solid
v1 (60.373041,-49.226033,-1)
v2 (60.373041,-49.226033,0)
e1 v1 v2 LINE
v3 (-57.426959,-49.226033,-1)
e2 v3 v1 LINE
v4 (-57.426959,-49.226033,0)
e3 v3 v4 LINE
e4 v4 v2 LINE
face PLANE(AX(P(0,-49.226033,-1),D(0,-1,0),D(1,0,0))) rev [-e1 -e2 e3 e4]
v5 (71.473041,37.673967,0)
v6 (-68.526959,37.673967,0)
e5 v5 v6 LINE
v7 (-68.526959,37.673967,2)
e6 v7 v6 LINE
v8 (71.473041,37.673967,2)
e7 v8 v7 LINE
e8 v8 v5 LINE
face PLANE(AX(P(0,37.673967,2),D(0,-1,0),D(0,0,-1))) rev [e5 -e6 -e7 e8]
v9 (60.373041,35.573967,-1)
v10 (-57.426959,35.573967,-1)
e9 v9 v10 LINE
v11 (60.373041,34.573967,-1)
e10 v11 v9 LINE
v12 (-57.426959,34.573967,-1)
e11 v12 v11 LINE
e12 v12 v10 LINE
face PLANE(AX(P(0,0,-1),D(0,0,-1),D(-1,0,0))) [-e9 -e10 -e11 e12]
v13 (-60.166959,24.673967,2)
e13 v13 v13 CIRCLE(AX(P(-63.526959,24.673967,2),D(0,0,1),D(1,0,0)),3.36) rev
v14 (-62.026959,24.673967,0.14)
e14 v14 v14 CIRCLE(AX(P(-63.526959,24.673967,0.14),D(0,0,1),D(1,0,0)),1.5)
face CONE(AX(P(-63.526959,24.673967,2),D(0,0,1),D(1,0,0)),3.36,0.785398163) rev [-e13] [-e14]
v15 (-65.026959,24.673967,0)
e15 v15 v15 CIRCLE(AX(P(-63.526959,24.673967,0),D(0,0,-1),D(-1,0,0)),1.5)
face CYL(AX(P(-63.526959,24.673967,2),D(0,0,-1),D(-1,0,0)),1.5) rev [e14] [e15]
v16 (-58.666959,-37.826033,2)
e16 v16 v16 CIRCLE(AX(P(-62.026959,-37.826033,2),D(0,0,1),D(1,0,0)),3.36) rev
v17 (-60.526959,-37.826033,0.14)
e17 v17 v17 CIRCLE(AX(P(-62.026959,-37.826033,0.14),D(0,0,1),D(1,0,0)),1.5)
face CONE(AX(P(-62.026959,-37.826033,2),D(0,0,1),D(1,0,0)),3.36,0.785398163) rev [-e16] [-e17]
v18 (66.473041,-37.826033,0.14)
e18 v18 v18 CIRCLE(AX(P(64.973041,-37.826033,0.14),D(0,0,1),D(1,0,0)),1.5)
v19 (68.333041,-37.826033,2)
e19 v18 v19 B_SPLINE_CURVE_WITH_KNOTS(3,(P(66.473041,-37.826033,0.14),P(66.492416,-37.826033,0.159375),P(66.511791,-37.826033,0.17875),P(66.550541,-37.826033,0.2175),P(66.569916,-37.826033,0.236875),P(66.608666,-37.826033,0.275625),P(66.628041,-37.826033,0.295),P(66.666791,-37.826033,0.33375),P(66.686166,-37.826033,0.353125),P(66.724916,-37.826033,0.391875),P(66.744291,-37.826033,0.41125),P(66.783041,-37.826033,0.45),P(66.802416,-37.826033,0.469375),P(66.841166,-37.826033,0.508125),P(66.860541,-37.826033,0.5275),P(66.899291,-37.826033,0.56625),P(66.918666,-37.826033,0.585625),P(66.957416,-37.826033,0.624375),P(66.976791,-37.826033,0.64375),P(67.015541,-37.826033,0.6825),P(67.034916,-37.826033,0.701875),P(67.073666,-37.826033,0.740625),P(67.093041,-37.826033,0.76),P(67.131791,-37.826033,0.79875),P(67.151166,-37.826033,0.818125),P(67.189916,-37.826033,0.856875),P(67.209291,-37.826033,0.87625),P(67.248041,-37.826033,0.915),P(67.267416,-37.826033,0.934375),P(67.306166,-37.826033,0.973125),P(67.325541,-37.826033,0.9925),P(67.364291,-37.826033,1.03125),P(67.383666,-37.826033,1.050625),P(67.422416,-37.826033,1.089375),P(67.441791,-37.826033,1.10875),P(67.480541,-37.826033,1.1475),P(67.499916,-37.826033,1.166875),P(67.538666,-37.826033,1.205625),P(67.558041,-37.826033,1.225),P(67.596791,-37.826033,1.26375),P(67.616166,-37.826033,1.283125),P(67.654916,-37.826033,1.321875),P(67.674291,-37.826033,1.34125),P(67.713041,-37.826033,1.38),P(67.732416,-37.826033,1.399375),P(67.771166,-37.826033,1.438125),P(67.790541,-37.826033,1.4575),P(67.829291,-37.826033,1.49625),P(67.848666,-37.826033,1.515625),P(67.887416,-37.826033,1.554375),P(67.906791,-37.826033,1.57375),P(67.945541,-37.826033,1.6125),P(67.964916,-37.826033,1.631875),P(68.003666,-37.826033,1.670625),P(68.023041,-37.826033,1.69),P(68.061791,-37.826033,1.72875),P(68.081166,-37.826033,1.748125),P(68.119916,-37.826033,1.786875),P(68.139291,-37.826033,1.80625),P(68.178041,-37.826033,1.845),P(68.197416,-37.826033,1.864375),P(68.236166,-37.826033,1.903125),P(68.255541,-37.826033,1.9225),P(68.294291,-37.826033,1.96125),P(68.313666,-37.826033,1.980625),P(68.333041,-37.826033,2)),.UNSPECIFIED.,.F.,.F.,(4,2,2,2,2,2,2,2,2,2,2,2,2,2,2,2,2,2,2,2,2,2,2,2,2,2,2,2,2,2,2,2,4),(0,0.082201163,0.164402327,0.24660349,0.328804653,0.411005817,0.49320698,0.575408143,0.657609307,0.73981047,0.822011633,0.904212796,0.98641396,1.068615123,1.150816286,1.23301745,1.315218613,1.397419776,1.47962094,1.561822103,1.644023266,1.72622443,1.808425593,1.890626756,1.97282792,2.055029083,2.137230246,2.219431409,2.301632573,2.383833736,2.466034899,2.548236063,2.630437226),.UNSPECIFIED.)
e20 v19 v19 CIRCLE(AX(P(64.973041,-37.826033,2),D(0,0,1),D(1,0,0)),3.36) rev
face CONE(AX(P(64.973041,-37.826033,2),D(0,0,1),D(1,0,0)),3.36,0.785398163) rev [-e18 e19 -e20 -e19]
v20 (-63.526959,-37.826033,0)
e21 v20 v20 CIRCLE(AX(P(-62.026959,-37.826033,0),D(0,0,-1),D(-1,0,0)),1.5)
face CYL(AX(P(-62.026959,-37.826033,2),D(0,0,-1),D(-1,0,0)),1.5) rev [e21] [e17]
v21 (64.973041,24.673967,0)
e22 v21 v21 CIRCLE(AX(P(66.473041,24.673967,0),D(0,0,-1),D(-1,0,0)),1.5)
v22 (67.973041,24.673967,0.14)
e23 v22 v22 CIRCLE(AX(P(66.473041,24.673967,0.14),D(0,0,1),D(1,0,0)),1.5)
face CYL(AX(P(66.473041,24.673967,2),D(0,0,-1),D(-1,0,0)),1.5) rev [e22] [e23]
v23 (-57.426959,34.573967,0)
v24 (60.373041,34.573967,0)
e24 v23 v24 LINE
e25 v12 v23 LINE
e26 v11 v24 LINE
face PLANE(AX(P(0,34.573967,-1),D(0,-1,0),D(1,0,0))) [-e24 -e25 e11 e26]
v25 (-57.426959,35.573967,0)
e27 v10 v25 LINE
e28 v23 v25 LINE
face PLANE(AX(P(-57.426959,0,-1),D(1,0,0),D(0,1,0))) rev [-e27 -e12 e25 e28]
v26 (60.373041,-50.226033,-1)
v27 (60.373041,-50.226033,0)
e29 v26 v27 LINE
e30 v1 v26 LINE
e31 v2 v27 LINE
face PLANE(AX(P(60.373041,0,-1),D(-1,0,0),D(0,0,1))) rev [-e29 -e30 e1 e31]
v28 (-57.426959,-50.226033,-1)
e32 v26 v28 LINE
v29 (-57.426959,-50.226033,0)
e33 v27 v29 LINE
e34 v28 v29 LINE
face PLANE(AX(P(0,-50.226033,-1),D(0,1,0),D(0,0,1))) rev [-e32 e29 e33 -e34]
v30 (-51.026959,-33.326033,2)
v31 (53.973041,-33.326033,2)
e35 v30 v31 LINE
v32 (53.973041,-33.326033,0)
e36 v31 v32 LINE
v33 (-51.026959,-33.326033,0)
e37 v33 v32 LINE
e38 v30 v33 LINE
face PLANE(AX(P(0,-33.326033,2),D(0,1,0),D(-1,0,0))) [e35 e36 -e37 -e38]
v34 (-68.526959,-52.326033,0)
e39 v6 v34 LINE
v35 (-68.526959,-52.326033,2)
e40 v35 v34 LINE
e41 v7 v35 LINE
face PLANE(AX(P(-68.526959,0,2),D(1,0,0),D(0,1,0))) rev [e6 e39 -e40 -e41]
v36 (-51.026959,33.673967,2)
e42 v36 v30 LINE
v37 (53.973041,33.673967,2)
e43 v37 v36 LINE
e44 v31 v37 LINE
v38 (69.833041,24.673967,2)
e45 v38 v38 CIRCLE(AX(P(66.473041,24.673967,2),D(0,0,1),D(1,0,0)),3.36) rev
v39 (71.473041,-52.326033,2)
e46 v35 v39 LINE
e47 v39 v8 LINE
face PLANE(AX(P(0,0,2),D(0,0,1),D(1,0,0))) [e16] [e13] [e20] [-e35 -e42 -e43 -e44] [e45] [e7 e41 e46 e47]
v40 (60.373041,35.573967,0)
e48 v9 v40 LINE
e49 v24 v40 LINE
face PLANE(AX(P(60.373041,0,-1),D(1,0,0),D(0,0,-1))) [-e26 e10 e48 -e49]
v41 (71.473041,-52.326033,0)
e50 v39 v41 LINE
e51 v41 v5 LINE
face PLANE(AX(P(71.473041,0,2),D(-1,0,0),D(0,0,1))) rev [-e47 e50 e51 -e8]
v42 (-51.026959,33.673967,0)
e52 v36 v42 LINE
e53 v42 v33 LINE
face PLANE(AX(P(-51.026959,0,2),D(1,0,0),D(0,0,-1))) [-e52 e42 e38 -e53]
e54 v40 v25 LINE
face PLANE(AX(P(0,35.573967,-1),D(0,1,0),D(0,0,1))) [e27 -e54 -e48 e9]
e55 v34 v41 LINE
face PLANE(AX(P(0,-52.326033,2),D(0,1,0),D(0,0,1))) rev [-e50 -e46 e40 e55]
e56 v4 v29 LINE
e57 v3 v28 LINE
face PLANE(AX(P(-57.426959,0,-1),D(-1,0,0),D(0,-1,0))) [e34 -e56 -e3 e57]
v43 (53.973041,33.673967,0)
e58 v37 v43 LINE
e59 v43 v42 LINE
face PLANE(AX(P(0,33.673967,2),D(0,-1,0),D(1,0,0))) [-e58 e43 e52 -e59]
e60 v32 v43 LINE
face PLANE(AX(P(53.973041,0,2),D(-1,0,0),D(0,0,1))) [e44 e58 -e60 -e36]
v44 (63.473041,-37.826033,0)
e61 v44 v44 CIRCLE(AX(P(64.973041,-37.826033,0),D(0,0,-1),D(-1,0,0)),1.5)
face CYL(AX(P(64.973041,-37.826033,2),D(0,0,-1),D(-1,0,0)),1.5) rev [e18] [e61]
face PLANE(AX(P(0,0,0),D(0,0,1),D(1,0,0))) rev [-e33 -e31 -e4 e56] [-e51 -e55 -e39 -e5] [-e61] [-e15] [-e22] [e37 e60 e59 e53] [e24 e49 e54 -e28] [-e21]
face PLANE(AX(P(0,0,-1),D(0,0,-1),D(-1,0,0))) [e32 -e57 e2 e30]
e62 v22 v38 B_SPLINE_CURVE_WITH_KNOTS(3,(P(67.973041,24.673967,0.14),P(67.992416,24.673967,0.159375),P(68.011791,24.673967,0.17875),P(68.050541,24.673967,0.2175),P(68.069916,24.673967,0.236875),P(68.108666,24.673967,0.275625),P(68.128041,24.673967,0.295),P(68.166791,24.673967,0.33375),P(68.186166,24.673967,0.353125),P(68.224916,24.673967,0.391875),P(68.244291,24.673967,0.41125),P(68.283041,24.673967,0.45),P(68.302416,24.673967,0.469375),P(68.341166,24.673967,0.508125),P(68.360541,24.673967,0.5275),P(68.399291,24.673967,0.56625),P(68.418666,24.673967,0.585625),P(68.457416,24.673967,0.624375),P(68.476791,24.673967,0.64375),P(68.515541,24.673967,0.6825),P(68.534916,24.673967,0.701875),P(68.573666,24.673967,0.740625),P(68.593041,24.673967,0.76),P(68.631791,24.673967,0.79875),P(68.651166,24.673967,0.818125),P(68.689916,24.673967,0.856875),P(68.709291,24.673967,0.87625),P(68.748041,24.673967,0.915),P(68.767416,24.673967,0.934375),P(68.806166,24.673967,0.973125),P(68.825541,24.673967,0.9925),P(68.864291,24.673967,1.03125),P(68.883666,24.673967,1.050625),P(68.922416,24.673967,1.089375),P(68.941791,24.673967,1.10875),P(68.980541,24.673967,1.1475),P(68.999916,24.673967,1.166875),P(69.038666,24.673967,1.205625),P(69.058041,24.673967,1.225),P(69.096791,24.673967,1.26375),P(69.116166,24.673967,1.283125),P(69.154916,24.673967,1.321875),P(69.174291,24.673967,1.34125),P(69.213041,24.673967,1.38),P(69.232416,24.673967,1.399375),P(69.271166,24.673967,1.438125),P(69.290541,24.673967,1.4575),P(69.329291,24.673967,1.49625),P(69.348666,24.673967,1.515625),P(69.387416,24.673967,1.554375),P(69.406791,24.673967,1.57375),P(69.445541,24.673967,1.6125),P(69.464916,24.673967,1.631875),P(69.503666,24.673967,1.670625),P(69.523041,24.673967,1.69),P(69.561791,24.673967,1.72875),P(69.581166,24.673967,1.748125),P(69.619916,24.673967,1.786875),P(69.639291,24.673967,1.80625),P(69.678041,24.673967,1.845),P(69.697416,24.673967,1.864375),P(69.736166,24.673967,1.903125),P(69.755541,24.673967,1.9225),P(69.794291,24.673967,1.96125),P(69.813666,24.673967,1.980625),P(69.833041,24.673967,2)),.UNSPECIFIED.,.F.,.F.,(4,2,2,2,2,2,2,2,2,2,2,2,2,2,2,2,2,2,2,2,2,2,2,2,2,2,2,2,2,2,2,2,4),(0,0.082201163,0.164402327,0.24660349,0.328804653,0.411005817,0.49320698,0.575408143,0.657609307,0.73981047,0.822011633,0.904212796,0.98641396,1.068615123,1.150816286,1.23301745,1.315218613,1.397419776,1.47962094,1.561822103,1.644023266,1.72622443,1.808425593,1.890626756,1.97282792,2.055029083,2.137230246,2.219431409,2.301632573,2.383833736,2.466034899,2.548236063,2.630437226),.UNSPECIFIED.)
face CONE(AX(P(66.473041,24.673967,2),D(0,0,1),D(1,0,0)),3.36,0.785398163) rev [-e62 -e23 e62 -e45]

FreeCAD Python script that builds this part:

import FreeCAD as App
import Part
import Sketcher

V = App.Vector
Q = App.Units.Quantity


def edges_at(feature, points):
    """Names of the edges that pass closest to the given points."""
    edges = feature.Shape.Edges
    near = lambda p: min(range(len(edges)), key=lambda i: edges[i].distToShape(Part.Vertex(*p))[0])
    return sorted({f"Edge{near(p) + 1}" for p in points})


def add_polygon(sketch, points):
    """Adds a closed chain of lines whose ends are joined by coincident constraints."""
    first, n = sketch.GeometryCount, len(points)
    for a, b in zip(points, points[1:] + points[:1]):
        sketch.addGeometry(Part.LineSegment(App.Vector(*a, 0), App.Vector(*b, 0)), False)
    for i in range(n):
        sketch.addConstraint(Sketcher.Constraint("Coincident", first + i, 2, first + (i + 1) % n, 1))

doc = App.newDocument("Part")
body = doc.addObject("PartDesign::Body", "Body")

# Sketch on XY plane
sketch1 = body.newObject("Sketcher::SketchObject", "Sketch")
sketch1.AttachmentSupport = (doc.getObject("XY_Plane"), [""])
sketch1.MapMode = "FlatFace"
add_polygon(sketch1, [(-69, 38), (-69, -52), (71, -52), (71, 38)])  # lines 0-3
add_polygon(sketch1, [(54, -33), (-51, -33), (-51, 34), (54, 34)])  # lines 4-7
sketch1.addConstraint([
    Sketcher.Constraint("Vertical", 0),
    Sketcher.Constraint("Horizontal", 1),
    Sketcher.Constraint("Vertical", 2),
    Sketcher.Constraint("Horizontal", 3),
    Sketcher.Constraint("Horizontal", 4),
    Sketcher.Constraint("Vertical", 5),
    Sketcher.Constraint("Horizontal", 6),
    Sketcher.Constraint("Vertical", 7),
    Sketcher.Constraint("DistanceX", 1, 1, 1, 2, Q("140 mm")),
    Sketcher.Constraint("DistanceX", 4, 2, 4, 1, Q("105 mm")),
    Sketcher.Constraint("DistanceY", 0, 2, 0, 1, Q("90 mm")),
    Sketcher.Constraint("DistanceY", 5, 1, 5, 2, Q("67 mm")),
    Sketcher.Constraint("DistanceY", 0, 2, 4, 2, Q("19 mm")),
    Sketcher.Constraint("DistanceX", 0, 2, 4, 2, Q("17.5 mm")),
    Sketcher.Constraint("DistanceX", 0, 2, -1, 1, Q("68.526959 mm")),
    Sketcher.Constraint("DistanceY", 0, 2, -1, 1, Q("52.326033 mm")),
])
pad1 = body.newObject("PartDesign::Pad", "Pad")
pad1.Profile = sketch1
pad1.Length = 2

# Sketch on XY plane
sketch2 = body.newObject("Sketcher::SketchObject", "Sketch001")
sketch2.AttachmentSupport = (doc.getObject("XY_Plane"), [""])
sketch2.MapMode = "FlatFace"
sketch2.addGeometry([
    Part.Circle(V(-62, -37.8, 0), V(0, 0, 1), 1.5),
    Part.Circle(V(-63.5, 24.7, 0), V(0, 0, 1), 1.5),
    Part.Circle(V(65, -37.8, 0), V(0, 0, 1), 1.5),
    Part.Circle(V(66.5, 24.7, 0), V(0, 0, 1), 1.5),
], False)
sketch2.addConstraint([
    Sketcher.Constraint("Equal", 0, 1),
    Sketcher.Constraint("Equal", 1, 2),
    Sketcher.Constraint("Equal", 2, 3),
    Sketcher.Constraint("Horizontal", 0, 3, 2, 3),
    Sketcher.Constraint("Horizontal", 1, 3, 3, 3),
    Sketcher.Constraint("Diameter", 0, Q("3 mm")),
    Sketcher.Constraint("DistanceX", 0, 3, 2, 3, Q("127 mm")),
    Sketcher.Constraint("DistanceX", 1, 3, 3, 3, Q("130 mm")),
    Sketcher.Constraint("DistanceX", 1, 3, 0, 3, Q("1.5 mm")),
    Sketcher.Constraint("DistanceY", 0, 3, 1, 3, Q("62.5 mm")),
    Sketcher.Constraint("DistanceX", 0, 3, -1, 1, Q("62.026959 mm")),
    Sketcher.Constraint("DistanceY", 0, 3, -1, 1, Q("37.826033 mm")),
])
pocket1 = body.newObject("PartDesign::Pocket", "Pocket")
pocket1.Profile = sketch2
pocket1.Type = "ThroughAll"
pocket1.Reversed = True
doc.recompute()

chamfer = body.newObject("PartDesign::Chamfer", "Chamfer")
chamfer.Base = (pocket1, edges_at(pocket1, [
    (-60.527, -37.826, 2),
    (-62.027, 24.674, 2),
    (66.473, -37.826, 2),
    (67.973, 24.674, 2),
]))
chamfer.Size = 1.86

# Sketch on XY plane
sketch3 = body.newObject("Sketcher::SketchObject", "Sketch002")
sketch3.AttachmentSupport = (doc.getObject("XY_Plane"), [""])
sketch3.MapMode = "FlatFace"
add_polygon(sketch3, [(60.4, -49.2), (60.4, -50.2), (-57.4, -50.2), (-57.4, -49.2)])  # lines 0-3
add_polygon(sketch3, [(60.4, 35.6), (60.4, 34.6), (-57.4, 34.6), (-57.4, 35.6)])  # lines 4-7
sketch3.addConstraint([
    Sketcher.Constraint("Vertical", 0),
    Sketcher.Constraint("Horizontal", 1),
    Sketcher.Constraint("Vertical", 2),
    Sketcher.Constraint("Horizontal", 3),
    Sketcher.Constraint("Vertical", 4),
    Sketcher.Constraint("Horizontal", 5),
    Sketcher.Constraint("Vertical", 6),
    Sketcher.Constraint("Horizontal", 7),
    Sketcher.Constraint("Vertical", 3, 2, 4, 2),
    Sketcher.Constraint("Vertical", 2, 2, 5, 2),
    Sketcher.Constraint("Equal", 2, 4),
    Sketcher.Constraint("DistanceY", 0, 2, 0, 1, Q("1 mm")),
    Sketcher.Constraint("DistanceX", 1, 2, 1, 1, Q("117.8 mm")),
    Sketcher.Constraint("DistanceY", 3, 2, 4, 2, Q("83.8 mm")),
    Sketcher.Constraint("DistanceX", -1, 1, 0, 2, Q("60.373041 mm")),
    Sketcher.Constraint("DistanceY", 0, 2, -1, 1, Q("50.226033 mm")),
])
pad2 = body.newObject("PartDesign::Pad", "Pad001")
pad2.Profile = sketch3
pad2.Length = 1
pad2.Reversed = True

doc.recompute()
